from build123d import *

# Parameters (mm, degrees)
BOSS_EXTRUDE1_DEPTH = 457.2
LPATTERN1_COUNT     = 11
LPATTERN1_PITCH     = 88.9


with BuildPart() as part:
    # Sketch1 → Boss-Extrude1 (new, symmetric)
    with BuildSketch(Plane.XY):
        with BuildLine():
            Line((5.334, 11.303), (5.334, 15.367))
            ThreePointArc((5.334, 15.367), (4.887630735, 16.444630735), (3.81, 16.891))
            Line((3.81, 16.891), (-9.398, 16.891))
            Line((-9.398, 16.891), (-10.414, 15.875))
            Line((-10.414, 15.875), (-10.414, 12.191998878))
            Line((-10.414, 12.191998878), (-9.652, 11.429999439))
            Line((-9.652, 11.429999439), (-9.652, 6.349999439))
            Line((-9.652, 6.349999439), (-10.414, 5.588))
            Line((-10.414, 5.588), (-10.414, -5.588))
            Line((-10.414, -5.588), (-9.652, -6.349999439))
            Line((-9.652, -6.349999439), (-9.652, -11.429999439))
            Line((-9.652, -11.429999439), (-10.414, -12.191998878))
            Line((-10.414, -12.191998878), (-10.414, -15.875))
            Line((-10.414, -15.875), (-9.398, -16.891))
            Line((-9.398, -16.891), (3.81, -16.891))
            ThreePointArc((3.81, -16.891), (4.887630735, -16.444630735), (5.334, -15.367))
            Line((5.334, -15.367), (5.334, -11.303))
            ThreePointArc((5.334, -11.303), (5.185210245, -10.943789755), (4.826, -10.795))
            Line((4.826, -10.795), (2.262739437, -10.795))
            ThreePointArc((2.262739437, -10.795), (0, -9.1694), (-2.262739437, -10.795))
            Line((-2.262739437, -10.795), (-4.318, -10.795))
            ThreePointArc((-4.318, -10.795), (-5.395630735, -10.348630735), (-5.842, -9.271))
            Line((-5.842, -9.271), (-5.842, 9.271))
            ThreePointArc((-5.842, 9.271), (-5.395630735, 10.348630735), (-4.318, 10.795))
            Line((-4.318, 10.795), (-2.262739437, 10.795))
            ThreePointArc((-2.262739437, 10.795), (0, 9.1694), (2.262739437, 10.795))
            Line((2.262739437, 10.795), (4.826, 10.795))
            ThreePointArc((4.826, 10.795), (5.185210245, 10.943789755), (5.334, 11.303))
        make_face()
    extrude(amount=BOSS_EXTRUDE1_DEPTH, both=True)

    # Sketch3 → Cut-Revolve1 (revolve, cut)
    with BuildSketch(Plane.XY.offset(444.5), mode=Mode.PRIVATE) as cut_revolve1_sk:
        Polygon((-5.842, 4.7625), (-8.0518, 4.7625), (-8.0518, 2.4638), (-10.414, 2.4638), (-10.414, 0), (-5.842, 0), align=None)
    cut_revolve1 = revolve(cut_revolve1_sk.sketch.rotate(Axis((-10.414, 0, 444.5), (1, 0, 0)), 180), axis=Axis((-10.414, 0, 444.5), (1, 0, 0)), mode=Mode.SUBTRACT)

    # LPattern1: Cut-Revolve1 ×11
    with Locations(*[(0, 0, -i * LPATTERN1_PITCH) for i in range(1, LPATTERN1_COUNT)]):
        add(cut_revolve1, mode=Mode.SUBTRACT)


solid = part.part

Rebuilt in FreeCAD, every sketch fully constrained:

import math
import FreeCAD as App
import Part
import Sketcher
from FreeCAD import Vector
Q = App.Units.Quantity

doc = App.newDocument("Part")
body = doc.addObject("PartDesign::Body", "Body")

# Sketch on XY plane
sketch1 = body.newObject("Sketcher::SketchObject", "Sketch")
sketch1.AttachmentSupport = (doc.getObject("XY_Plane"), [""])
sketch1.MapMode = "FlatFace"
sketch1.addGeometry(Part.LineSegment(Vector(5.3, 11.3, 0), Vector(5.3, 15.4, 0)), False)
sketch1.addGeometry(Part.ArcOfCircle(Part.Circle(Vector(3.8, 15.4, 0), Vector(0, 0, 1), 1.5), math.radians(0), math.radians(90)), False)
sketch1.addGeometry(Part.LineSegment(Vector(3.8, 16.9, 0), Vector(-9.4, 16.9, 0)), False)
sketch1.addGeometry(Part.LineSegment(Vector(-9.4, 16.9, 0), Vector(-10.4, 15.9, 0)), False)
sketch1.addGeometry(Part.LineSegment(Vector(-10.4, 15.9, 0), Vector(-10.4, 12.2, 0)), False)
sketch1.addGeometry(Part.LineSegment(Vector(-10.4, 12.2, 0), Vector(-9.7, 11.4, 0)), False)
sketch1.addGeometry(Part.LineSegment(Vector(-9.7, 11.4, 0), Vector(-9.7, 6.3, 0)), False)
sketch1.addGeometry(Part.LineSegment(Vector(-9.7, 6.3, 0), Vector(-10.4, 5.6, 0)), False)
sketch1.addGeometry(Part.LineSegment(Vector(-10.4, 5.6, 0), Vector(-10.4, -5.6, 0)), False)
sketch1.addGeometry(Part.LineSegment(Vector(-10.4, -5.6, 0), Vector(-9.7, -6.3, 0)), False)
sketch1.addGeometry(Part.LineSegment(Vector(-9.7, -6.3, 0), Vector(-9.7, -11.4, 0)), False)
sketch1.addGeometry(Part.LineSegment(Vector(-9.7, -11.4, 0), Vector(-10.4, -12.2, 0)), False)
sketch1.addGeometry(Part.LineSegment(Vector(-10.4, -12.2, 0), Vector(-10.4, -15.9, 0)), False)
sketch1.addGeometry(Part.LineSegment(Vector(-10.4, -15.9, 0), Vector(-9.4, -16.9, 0)), False)
sketch1.addGeometry(Part.LineSegment(Vector(-9.4, -16.9, 0), Vector(3.8, -16.9, 0)), False)
sketch1.addGeometry(Part.ArcOfCircle(Part.Circle(Vector(3.8, -15.4, 0), Vector(0, 0, 1), 1.5), math.radians(-90), math.radians(0)), False)
sketch1.addGeometry(Part.LineSegment(Vector(5.3, -15.4, 0), Vector(5.3, -11.3, 0)), False)
sketch1.addGeometry(Part.ArcOfCircle(Part.Circle(Vector(4.8, -11.3, 0), Vector(0, 0, 1), 0.5), math.radians(0), math.radians(90)), False)
sketch1.addGeometry(Part.LineSegment(Vector(4.8, -10.8, 0), Vector(2.3, -10.8, 0)), False)
sketch1.addGeometry(Part.ArcOfCircle(Part.Circle(Vector(0, -11.6, 0), Vector(0, 0, 1), 2.4), math.radians(19), math.radians(161)), False)
sketch1.addGeometry(Part.LineSegment(Vector(-2.3, -10.8, 0), Vector(-4.3, -10.8, 0)), False)
sketch1.addGeometry(Part.ArcOfCircle(Part.Circle(Vector(-4.3, -9.3, 0), Vector(0, 0, 1), 1.5), math.radians(180), math.radians(270)), False)
sketch1.addGeometry(Part.LineSegment(Vector(-5.8, -9.3, 0), Vector(-5.8, 9.3, 0)), False)
sketch1.addGeometry(Part.ArcOfCircle(Part.Circle(Vector(-4.3, 9.3, 0), Vector(0, 0, 1), 1.5), math.radians(90), math.radians(180)), False)
sketch1.addGeometry(Part.LineSegment(Vector(-4.3, 10.8, 0), Vector(-2.3, 10.8, 0)), False)
sketch1.addGeometry(Part.ArcOfCircle(Part.Circle(Vector(0, 11.6, 0), Vector(0, 0, 1), 2.4), math.radians(-161), math.radians(-19)), False)
sketch1.addGeometry(Part.LineSegment(Vector(2.3, 10.8, 0), Vector(4.8, 10.8, 0)), False)
sketch1.addGeometry(Part.ArcOfCircle(Part.Circle(Vector(4.8, 11.3, 0), Vector(0, 0, 1), 0.5), math.radians(-90), math.radians(0)), False)
sketch1.addConstraint(Sketcher.Constraint("Tangent", 0, 2, 1, 1))
sketch1.addConstraint(Sketcher.Constraint("Tangent", 1, 2, 2, 1))
sketch1.addConstraint(Sketcher.Constraint("Coincident", 2, 2, 3, 1))
sketch1.addConstraint(Sketcher.Constraint("Coincident", 3, 2, 4, 1))
sketch1.addConstraint(Sketcher.Constraint("Coincident", 4, 2, 5, 1))
sketch1.addConstraint(Sketcher.Constraint("Coincident", 5, 2, 6, 1))
sketch1.addConstraint(Sketcher.Constraint("Coincident", 6, 2, 7, 1))
sketch1.addConstraint(Sketcher.Constraint("Coincident", 7, 2, 8, 1))
sketch1.addConstraint(Sketcher.Constraint("Coincident", 8, 2, 9, 1))
sketch1.addConstraint(Sketcher.Constraint("Coincident", 9, 2, 10, 1))
sketch1.addConstraint(Sketcher.Constraint("Coincident", 10, 2, 11, 1))
sketch1.addConstraint(Sketcher.Constraint("Coincident", 11, 2, 12, 1))
sketch1.addConstraint(Sketcher.Constraint("Coincident", 12, 2, 13, 1))
sketch1.addConstraint(Sketcher.Constraint("Coincident", 13, 2, 14, 1))
sketch1.addConstraint(Sketcher.Constraint("Tangent", 14, 2, 15, 1))
sketch1.addConstraint(Sketcher.Constraint("Tangent", 15, 2, 16, 1))
sketch1.addConstraint(Sketcher.Constraint("Tangent", 16, 2, 17, 1))
sketch1.addConstraint(Sketcher.Constraint("Tangent", 17, 2, 18, 1))
sketch1.addConstraint(Sketcher.Constraint("Coincident", 18, 2, 19, 1))
sketch1.addConstraint(Sketcher.Constraint("Coincident", 19, 2, 20, 1))
sketch1.addConstraint(Sketcher.Constraint("Tangent", 20, 2, 21, 2))
sketch1.addConstraint(Sketcher.Constraint("Tangent", 21, 1, 22, 1))
sketch1.addConstraint(Sketcher.Constraint("Tangent", 22, 2, 23, 2))
sketch1.addConstraint(Sketcher.Constraint("Tangent", 23, 1, 24, 1))
sketch1.addConstraint(Sketcher.Constraint("Coincident", 24, 2, 25, 1))
sketch1.addConstraint(Sketcher.Constraint("Coincident", 25, 2, 26, 1))
sketch1.addConstraint(Sketcher.Constraint("Tangent", 26, 2, 27, 1))
sketch1.addConstraint(Sketcher.Constraint("Tangent", 27, 2, 0, 1))
sketch1.addConstraint(Sketcher.Constraint("Vertical", 0))
sketch1.addConstraint(Sketcher.Constraint("Horizontal", 2))
sketch1.addConstraint(Sketcher.Constraint("Vertical", 4))
sketch1.addConstraint(Sketcher.Constraint("Vertical", 6))
sketch1.addConstraint(Sketcher.Constraint("Vertical", 8))
sketch1.addConstraint(Sketcher.Constraint("Vertical", 10))
sketch1.addConstraint(Sketcher.Constraint("Vertical", 12))
sketch1.addConstraint(Sketcher.Constraint("Horizontal", 14))
sketch1.addConstraint(Sketcher.Constraint("Vertical", 16))
sketch1.addConstraint(Sketcher.Constraint("Horizontal", 18))
sketch1.addConstraint(Sketcher.Constraint("Horizontal", 20))
sketch1.addConstraint(Sketcher.Constraint("Vertical", 22))
sketch1.addConstraint(Sketcher.Constraint("Horizontal", 24))
sketch1.addConstraint(Sketcher.Constraint("Horizontal", 26))
sketch1.addConstraint(Sketcher.Constraint("Equal", 1, 15))
sketch1.addConstraint(Sketcher.Constraint("Equal", 15, 21))
sketch1.addConstraint(Sketcher.Constraint("Equal", 21, 23))
sketch1.addConstraint(Sketcher.Constraint("Equal", 19, 25))
sketch1.addConstraint(Sketcher.Constraint("Equal", 17, 27))
sketch1.addConstraint(Sketcher.Constraint("Symmetric", 19, 3, 25, 3, -1, 1))
sketch1.addConstraint(Sketcher.Constraint("Symmetric", 18, 2, 19, 2, -2))
sketch1.addConstraint(Sketcher.Constraint("Symmetric", 1, 3, 15, 3, -1))
sketch1.addConstraint(Sketcher.Constraint("Symmetric", 6, 2, 9, 2, -1))
sketch1.addConstraint(Sketcher.Constraint("Symmetric", 4, 2, 11, 2, -1))
sketch1.addConstraint(Sketcher.Constraint("Perpendicular", 3, 5))
sketch1.addConstraint(Sketcher.Constraint("Perpendicular", 5, 7))
sketch1.addConstraint(Sketcher.Constraint("Perpendicular", 7, 9))
sketch1.addConstraint(Sketcher.Constraint("Perpendicular", 9, 11))
sketch1.addConstraint(Sketcher.Constraint("Perpendicular", 11, 13))
sketch1.addConstraint(Sketcher.Constraint("Horizontal", 24, 2, 25, 2))
sketch1.addConstraint(Sketcher.Constraint("Vertical", 4, 2, 7, 2))
sketch1.addConstraint(Sketcher.Constraint("Vertical", 2, 2, 13, 2))
sketch1.addConstraint(Sketcher.Constraint("Vertical", 19, 2, 24, 2))
sketch1.addConstraint(Sketcher.Constraint("Equal", 6, 10))
sketch1.addConstraint(Sketcher.Constraint("Radius", 1, Q("0.06 in")))
sketch1.addConstraint(Sketcher.Constraint("Radius", 17, Q("0.02 in")))
sketch1.addConstraint(Sketcher.Constraint("DistanceY", 6, 2, 6, 1, Q("0.2 in")))
sketch1.addConstraint(Sketcher.Constraint("Radius", 19, Q("0.094 in")))
sketch1.addConstraint(Sketcher.Constraint("DistanceX", 2, 2, 2, 1, Q("0.52 in")))
sketch1.addConstraint(Sketcher.Constraint("DistanceY", 0, 1, 0, 2, Q("0.16 in")))
sketch1.addConstraint(Sketcher.Constraint("DistanceY", 8, 2, 8, 1, Q("0.44 in")))
sketch1.addConstraint(Sketcher.Constraint("DistanceY", 22, 1, 22, 2, Q("0.73 in")))
sketch1.addConstraint(Sketcher.Constraint("DistanceY", 17, 3, 25, 3, Q("0.9 in")))
sketch1.addConstraint(Sketcher.Constraint("DistanceX", 2, 2, 23, 3, Q("0.2 in")))
sketch1.addConstraint(Sketcher.Constraint("DistanceY", 9, 2, 6, 2, Q("0.5 in")))
sketch1.addConstraint(Sketcher.Constraint("DistanceY", 4, 2, 4, 1, Q("0.145 in")))
sketch1.addConstraint(Sketcher.Constraint("DistanceX", -1, 1, 1, 3, Q("0.15 in")))
pad1 = body.newObject("PartDesign::Pad", "Pad")
pad1.Profile = sketch1
pad1.Length = Q("36 in")
pad1.Midplane = True

# Sketch on XY plane
sketch2 = body.newObject("Sketcher::SketchObject", "Sketch001")
sketch2.AttachmentSupport = (doc.getObject("XY_Plane"), [""])
sketch2.MapMode = "FlatFace"
sketch2.AttachmentOffset = App.Placement(Vector(0, 0, 17.5 * 25.4), App.Rotation())
sketch2.addGeometry(Part.LineSegment(Vector(-5.8, 4.8, 0), Vector(-8.1, 4.8, 0)), False)
sketch2.addGeometry(Part.LineSegment(Vector(-8.1, 4.8, 0), Vector(-8.1, 2.5, 0)), False)
sketch2.addGeometry(Part.LineSegment(Vector(-8.1, 2.5, 0), Vector(-10.4, 2.5, 0)), False)
sketch2.addGeometry(Part.LineSegment(Vector(-10.4, 2.5, 0), Vector(-10.4, 0, 0)), False)
sketch2.addGeometry(Part.LineSegment(Vector(-10.4, 0, 0), Vector(-5.8, 0, 0)), False)
sketch2.addGeometry(Part.LineSegment(Vector(-5.8, 0, 0), Vector(-5.8, 4.8, 0)), False)
sketch2.addConstraint(Sketcher.Constraint("Coincident", 0, 2, 1, 1))
sketch2.addConstraint(Sketcher.Constraint("Coincident", 1, 2, 2, 1))
sketch2.addConstraint(Sketcher.Constraint("Coincident", 2, 2, 3, 1))
sketch2.addConstraint(Sketcher.Constraint("Coincident", 3, 2, 4, 1))
sketch2.addConstraint(Sketcher.Constraint("Coincident", 4, 2, 5, 1))
sketch2.addConstraint(Sketcher.Constraint("Coincident", 5, 2, 0, 1))
sketch2.addConstraint(Sketcher.Constraint("Horizontal", 0))
sketch2.addConstraint(Sketcher.Constraint("Vertical", 1))
sketch2.addConstraint(Sketcher.Constraint("Horizontal", 2))
sketch2.addConstraint(Sketcher.Constraint("Vertical", 3))
sketch2.addConstraint(Sketcher.Constraint("Horizontal", 4))
sketch2.addConstraint(Sketcher.Constraint("Vertical", 5))
sketch2.addConstraint(Sketcher.Constraint("PointOnObject", 3, 2, -1))
sketch2.addConstraint(Sketcher.Constraint("DistanceX", 4, 1, 4, 2, Q("0.18 in")))
sketch2.addConstraint(Sketcher.Constraint("DistanceX", 0, 2, 0, 1, Q("0.087 in")))
sketch2.addConstraint(Sketcher.Constraint("DistanceY", 3, 2, 3, 1, Q("0.097 in")))
sketch2.addConstraint(Sketcher.Constraint("DistanceY", 5, 1, 5, 2, Q("0.1875 in")))
sketch2.addConstraint(Sketcher.Constraint("DistanceX", 2, 2, -1, 1, Q("0.41 in")))
groove = body.newObject("PartDesign::Groove", "Groove")
groove.Profile = sketch2
groove.ReferenceAxis = (sketch2, ["H_Axis"])
groove.Angle = 360
doc.recompute()

linearpattern = body.newObject("PartDesign::LinearPattern", "LinearPattern")
linearpattern.Originals = [groove]
linearpattern.Direction = (doc.getObject("Z_Axis"), [""])
linearpattern.Mode = "offset"
linearpattern.Offset = Q("3.5 in")
linearpattern.Occurrences = 11
linearpattern.Reversed = True
body.Tip = linearpattern

doc.recompute()
